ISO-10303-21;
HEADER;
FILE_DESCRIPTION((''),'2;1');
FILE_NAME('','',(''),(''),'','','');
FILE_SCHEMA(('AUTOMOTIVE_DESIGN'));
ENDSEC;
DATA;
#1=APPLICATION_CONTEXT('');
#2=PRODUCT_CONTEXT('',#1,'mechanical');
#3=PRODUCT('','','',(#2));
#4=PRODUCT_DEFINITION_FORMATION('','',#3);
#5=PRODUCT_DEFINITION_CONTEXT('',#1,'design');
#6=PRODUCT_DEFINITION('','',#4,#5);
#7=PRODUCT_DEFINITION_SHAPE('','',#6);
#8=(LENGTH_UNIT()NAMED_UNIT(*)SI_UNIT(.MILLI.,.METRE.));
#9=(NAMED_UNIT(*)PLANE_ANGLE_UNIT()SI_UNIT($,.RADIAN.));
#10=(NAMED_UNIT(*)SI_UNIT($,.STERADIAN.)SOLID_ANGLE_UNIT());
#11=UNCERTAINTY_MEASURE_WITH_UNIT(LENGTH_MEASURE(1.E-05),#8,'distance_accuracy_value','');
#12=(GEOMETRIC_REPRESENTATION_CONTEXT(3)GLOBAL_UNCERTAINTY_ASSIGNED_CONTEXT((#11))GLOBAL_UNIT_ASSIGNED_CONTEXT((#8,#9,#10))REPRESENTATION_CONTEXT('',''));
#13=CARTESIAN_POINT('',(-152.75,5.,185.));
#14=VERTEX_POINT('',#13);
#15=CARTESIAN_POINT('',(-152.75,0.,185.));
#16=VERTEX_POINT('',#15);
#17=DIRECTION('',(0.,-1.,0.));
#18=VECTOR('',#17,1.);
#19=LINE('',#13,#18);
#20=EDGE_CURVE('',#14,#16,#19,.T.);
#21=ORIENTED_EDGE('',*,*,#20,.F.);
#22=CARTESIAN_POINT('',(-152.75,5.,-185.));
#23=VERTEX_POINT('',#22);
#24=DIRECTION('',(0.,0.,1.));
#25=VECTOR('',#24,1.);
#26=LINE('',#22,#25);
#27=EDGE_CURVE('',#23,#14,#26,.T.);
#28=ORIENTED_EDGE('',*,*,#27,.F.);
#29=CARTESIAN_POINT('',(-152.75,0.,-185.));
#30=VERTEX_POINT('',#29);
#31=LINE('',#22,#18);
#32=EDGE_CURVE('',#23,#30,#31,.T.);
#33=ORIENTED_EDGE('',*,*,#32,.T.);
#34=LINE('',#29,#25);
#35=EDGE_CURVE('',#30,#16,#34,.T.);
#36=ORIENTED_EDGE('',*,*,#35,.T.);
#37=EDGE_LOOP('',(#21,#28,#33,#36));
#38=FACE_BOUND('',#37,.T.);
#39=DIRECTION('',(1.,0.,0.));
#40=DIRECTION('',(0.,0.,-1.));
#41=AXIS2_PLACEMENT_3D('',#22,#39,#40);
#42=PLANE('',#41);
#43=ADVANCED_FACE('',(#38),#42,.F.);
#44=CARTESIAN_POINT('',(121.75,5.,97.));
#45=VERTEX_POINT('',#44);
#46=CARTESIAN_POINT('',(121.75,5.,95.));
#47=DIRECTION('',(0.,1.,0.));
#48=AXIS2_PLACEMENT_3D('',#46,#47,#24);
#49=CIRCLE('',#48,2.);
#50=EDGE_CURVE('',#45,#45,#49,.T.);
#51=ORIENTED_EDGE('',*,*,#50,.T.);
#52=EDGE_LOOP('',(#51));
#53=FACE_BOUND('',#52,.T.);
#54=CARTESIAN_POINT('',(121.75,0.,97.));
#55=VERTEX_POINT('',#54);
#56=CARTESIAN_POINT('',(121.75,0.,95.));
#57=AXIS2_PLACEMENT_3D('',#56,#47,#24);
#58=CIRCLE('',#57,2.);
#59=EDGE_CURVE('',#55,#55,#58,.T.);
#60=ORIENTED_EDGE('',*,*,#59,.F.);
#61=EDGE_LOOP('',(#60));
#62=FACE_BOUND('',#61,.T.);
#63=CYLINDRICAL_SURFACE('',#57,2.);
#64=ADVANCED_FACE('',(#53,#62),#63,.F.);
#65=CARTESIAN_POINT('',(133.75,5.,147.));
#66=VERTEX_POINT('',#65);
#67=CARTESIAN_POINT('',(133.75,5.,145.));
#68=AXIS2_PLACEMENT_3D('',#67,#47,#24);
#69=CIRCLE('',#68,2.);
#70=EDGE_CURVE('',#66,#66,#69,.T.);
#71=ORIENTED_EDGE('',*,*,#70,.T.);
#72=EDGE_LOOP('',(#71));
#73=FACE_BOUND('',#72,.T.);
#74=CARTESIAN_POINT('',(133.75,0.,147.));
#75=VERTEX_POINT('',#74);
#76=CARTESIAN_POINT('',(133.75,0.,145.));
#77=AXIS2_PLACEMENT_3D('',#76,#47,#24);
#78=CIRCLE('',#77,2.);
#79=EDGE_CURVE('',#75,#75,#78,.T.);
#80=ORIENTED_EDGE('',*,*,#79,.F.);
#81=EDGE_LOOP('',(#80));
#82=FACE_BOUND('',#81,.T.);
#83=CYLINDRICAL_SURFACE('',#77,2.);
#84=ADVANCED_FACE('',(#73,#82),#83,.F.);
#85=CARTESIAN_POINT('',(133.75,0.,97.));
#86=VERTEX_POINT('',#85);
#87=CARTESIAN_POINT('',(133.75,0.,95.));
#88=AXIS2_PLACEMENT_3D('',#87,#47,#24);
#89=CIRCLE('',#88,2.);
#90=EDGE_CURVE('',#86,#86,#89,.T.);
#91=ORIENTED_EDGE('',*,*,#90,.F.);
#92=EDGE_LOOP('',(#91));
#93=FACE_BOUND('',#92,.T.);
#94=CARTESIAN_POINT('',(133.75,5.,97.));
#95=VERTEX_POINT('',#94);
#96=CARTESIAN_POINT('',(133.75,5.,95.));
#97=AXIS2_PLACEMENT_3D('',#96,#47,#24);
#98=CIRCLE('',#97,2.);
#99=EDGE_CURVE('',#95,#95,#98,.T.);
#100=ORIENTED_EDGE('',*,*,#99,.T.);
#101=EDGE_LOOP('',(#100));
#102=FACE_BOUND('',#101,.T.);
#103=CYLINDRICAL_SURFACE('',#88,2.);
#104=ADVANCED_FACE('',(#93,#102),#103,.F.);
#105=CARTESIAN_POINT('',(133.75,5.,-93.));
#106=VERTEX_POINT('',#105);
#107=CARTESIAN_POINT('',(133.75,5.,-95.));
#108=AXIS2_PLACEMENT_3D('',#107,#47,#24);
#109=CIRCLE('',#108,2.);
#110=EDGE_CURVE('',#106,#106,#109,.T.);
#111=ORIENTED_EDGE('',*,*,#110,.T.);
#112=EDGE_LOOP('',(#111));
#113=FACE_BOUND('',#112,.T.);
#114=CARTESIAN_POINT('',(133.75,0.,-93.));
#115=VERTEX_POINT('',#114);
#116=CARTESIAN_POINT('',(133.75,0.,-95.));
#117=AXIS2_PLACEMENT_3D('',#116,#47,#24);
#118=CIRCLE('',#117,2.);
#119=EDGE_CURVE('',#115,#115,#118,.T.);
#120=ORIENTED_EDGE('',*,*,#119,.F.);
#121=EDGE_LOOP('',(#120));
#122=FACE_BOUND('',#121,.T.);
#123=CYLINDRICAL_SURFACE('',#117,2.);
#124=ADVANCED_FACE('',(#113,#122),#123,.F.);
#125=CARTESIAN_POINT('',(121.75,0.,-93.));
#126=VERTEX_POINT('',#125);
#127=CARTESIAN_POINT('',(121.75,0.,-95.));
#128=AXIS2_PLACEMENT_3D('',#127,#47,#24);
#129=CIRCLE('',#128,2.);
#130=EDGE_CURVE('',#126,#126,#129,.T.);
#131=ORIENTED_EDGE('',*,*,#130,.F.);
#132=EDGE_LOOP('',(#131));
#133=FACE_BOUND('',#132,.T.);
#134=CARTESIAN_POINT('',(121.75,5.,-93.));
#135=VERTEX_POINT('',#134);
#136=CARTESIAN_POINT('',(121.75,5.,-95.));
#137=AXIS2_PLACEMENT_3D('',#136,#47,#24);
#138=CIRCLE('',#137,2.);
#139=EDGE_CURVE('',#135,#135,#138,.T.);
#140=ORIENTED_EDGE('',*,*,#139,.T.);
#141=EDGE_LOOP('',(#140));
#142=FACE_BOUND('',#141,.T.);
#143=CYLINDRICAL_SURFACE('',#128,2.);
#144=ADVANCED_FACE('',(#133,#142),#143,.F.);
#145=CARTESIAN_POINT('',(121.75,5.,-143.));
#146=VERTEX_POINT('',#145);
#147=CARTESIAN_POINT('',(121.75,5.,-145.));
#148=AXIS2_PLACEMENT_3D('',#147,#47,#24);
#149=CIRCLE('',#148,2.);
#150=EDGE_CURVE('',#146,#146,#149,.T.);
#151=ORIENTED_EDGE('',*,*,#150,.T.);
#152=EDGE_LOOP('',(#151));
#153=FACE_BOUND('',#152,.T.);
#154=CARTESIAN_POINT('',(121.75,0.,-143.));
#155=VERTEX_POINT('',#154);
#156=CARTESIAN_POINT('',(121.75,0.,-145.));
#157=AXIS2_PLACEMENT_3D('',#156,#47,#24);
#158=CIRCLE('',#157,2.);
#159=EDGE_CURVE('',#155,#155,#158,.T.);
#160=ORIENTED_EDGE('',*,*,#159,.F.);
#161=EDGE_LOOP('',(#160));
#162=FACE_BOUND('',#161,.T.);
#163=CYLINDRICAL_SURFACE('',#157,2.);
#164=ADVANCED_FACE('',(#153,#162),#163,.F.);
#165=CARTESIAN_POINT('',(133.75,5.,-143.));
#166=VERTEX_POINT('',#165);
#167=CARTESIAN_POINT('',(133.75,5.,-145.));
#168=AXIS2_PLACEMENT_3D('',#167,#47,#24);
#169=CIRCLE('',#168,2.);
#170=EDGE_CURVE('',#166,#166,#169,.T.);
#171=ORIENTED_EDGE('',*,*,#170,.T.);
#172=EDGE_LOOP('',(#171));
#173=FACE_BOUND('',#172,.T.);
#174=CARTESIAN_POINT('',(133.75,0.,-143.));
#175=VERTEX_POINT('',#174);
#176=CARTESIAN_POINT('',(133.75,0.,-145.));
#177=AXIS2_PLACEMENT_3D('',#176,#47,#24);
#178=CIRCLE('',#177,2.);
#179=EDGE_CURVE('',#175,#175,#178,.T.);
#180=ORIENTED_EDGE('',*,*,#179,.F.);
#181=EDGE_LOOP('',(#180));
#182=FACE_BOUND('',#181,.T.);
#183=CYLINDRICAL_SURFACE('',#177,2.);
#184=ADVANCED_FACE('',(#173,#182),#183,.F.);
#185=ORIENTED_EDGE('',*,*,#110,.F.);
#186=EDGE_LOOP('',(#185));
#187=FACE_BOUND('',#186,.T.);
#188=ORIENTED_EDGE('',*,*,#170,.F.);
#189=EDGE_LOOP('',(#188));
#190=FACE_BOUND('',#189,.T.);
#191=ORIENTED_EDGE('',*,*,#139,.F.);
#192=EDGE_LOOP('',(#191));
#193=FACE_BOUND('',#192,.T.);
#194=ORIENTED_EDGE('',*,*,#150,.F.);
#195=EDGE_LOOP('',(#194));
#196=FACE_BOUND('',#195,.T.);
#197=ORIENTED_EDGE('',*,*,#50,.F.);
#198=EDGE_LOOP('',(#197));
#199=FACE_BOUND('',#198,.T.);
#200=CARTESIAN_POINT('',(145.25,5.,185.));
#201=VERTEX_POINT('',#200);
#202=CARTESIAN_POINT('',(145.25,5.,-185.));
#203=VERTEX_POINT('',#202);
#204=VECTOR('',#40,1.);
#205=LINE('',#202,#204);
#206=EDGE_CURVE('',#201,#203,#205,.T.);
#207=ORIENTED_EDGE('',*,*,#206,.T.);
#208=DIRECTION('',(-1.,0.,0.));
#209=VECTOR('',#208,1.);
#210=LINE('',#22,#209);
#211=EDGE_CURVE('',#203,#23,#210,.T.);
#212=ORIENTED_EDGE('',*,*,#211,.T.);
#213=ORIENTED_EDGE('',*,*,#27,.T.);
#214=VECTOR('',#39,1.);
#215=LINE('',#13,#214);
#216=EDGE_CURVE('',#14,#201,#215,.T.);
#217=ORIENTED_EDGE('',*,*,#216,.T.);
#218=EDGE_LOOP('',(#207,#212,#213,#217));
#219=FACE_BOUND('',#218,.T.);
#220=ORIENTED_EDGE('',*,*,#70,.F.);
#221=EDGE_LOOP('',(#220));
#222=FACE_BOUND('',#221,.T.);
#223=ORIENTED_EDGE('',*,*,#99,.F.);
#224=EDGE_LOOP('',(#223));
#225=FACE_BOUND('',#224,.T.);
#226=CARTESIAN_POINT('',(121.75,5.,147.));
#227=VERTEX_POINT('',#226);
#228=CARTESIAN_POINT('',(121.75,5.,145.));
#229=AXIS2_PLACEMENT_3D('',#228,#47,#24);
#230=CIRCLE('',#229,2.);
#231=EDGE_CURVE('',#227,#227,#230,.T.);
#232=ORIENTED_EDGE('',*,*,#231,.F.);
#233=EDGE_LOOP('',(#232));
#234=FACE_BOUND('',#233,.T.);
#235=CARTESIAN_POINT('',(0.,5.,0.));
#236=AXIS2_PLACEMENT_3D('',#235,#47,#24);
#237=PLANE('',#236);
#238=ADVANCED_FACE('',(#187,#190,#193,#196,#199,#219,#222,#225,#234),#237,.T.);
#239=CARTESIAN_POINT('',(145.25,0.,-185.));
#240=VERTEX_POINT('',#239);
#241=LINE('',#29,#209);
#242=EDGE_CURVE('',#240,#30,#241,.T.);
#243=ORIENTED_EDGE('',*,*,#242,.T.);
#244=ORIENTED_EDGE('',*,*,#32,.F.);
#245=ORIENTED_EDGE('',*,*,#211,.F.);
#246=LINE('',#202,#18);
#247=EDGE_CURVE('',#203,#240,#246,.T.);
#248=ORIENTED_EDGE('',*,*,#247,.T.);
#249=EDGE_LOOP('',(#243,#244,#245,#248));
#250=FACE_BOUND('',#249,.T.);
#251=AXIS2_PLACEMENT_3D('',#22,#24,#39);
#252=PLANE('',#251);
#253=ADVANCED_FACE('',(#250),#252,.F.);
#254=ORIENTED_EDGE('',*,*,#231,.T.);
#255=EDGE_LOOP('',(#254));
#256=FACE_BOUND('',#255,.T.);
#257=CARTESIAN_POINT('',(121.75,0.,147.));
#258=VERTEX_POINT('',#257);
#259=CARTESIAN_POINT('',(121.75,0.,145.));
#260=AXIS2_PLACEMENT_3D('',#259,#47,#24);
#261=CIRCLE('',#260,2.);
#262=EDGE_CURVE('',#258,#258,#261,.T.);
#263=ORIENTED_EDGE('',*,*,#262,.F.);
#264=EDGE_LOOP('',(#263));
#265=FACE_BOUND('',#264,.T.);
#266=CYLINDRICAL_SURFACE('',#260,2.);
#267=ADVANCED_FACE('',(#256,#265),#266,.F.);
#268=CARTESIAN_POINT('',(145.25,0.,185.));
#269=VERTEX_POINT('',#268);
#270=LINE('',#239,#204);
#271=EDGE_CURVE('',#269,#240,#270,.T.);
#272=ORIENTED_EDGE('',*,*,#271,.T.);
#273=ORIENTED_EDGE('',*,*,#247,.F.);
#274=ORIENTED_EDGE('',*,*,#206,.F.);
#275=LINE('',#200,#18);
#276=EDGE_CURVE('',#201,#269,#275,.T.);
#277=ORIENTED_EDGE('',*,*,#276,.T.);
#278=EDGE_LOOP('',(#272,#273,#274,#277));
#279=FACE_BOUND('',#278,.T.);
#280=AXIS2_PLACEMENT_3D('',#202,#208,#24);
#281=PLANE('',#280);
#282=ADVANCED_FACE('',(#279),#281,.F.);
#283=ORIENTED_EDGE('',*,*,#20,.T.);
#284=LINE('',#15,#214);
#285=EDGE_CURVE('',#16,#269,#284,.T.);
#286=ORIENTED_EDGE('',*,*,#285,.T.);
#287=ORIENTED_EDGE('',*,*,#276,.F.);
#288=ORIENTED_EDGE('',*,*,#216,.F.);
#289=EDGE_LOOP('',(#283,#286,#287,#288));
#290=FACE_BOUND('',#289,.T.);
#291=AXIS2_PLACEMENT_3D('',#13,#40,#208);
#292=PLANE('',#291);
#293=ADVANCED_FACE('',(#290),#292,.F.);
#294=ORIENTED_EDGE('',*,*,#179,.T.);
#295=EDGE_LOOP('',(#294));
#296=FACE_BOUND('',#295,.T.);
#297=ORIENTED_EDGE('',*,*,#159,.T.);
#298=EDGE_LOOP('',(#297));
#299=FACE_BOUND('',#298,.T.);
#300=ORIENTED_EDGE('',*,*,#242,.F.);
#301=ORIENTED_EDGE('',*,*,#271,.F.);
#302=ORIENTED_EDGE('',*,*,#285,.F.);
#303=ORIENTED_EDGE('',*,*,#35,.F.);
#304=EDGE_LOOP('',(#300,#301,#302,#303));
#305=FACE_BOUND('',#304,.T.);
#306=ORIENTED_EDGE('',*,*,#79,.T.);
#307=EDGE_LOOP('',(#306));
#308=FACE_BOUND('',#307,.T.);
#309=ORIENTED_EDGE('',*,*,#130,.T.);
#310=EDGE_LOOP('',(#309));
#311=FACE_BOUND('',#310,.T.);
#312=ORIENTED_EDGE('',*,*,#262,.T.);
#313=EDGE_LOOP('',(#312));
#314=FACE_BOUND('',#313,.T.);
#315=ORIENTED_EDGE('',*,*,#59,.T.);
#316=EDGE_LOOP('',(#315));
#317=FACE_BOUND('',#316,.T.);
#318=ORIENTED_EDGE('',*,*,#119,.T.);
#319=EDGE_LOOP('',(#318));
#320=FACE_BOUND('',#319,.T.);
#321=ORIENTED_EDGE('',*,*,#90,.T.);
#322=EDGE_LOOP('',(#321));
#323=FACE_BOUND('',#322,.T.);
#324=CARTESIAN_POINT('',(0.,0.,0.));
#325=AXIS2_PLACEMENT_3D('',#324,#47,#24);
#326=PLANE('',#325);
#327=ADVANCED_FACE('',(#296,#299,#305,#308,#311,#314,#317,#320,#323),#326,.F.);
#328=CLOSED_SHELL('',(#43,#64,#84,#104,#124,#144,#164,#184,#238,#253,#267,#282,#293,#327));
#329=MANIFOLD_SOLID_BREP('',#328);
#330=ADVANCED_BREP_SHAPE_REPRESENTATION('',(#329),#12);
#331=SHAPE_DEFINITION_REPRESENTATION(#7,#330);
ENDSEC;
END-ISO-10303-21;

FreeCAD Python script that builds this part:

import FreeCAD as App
import Part
import Sketcher
from FreeCAD import Vector

doc = App.newDocument("Part")
body = doc.addObject("PartDesign::Body", "Body")

# Sketch on XZ plane
sketch1 = body.newObject("Sketcher::SketchObject", "Sketch")
sketch1.AttachmentSupport = (doc.getObject("XZ_Plane"), [""])
sketch1.MapMode = "FlatFace"
sketch1.addGeometry([
    Part.LineSegment(Vector(-152.75, -185, 0), Vector(-152.75, 185, 0)),
    Part.LineSegment(Vector(-152.75, 185, 0), Vector(145.25, 185, 0)),
    Part.LineSegment(Vector(145.25, 185, 0), Vector(145.25, -185, 0)),
    Part.LineSegment(Vector(145.25, -185, 0), Vector(-152.75, -185, 0)),
], False)
sketch1.addConstraint([
    Sketcher.Constraint("Coincident", 0, 2, 1, 1),
    Sketcher.Constraint("Coincident", 1, 2, 2, 1),
    Sketcher.Constraint("Coincident", 2, 2, 3, 1),
    Sketcher.Constraint("Coincident", 3, 2, 0, 1),
    Sketcher.Constraint("Vertical", 0),
    Sketcher.Constraint("Horizontal", 1),
    Sketcher.Constraint("Vertical", 2),
    Sketcher.Constraint("Horizontal", 3),
    Sketcher.Constraint("DistanceX", 1, 1, 1, 2, 298.0),
    Sketcher.Constraint("DistanceY", 0, 1, 0, 2, 370.0),
    Sketcher.Constraint("DistanceY", -1, 1, 0, 2, 185.0),
    Sketcher.Constraint("DistanceX", 0, 2, -1, 1, 152.75),
])
pad1 = body.newObject("PartDesign::Pad", "Pad")
pad1.Profile = sketch1
pad1.Length = 5
pad1.Reversed = True

# Sketch on XZ plane
sketch2 = body.newObject("Sketcher::SketchObject", "Sketch001")
sketch2.AttachmentSupport = (doc.getObject("XZ_Plane"), [""])
sketch2.MapMode = "FlatFace"
sketch2.AttachmentOffset = App.Placement(Vector(0, 0, -5), App.Rotation())
sketch2.addGeometry([
    Part.Circle(Vector(121.75, -145, 0), Vector(0, 0, 1), 2),  # 0
    Part.Circle(Vector(133.75, -145, 0), Vector(0, 0, 1), 2),  # 1
    Part.Circle(Vector(121.75, -95, 0), Vector(0, 0, 1), 2),  # 2
    Part.Circle(Vector(133.75, -95, 0), Vector(0, 0, 1), 2),  # 3
    Part.Circle(Vector(133.75, 95, 0), Vector(0, 0, 1), 2),  # 4
    Part.Circle(Vector(121.75, 95, 0), Vector(0, 0, 1), 2),  # 5
    Part.Circle(Vector(133.75, 145, 0), Vector(0, 0, 1), 2),  # 6
    Part.Circle(Vector(121.75, 145, 0), Vector(0, 0, 1), 2),  # 7
], False)
sketch2.addConstraint([
    Sketcher.Constraint("Equal", 0, 1),
    Sketcher.Constraint("Equal", 1, 2),
    Sketcher.Constraint("Equal", 2, 3),
    Sketcher.Constraint("Equal", 3, 4),
    Sketcher.Constraint("Equal", 4, 5),
    Sketcher.Constraint("Equal", 5, 6),
    Sketcher.Constraint("Equal", 6, 7),
    Sketcher.Constraint("Symmetric", 3, 3, 4, 3, -1),
    Sketcher.Constraint("Symmetric", 2, 3, 5, 3, -1),
    Sketcher.Constraint("Symmetric", 1, 3, 6, 3, -1),
    Sketcher.Constraint("Symmetric", 0, 3, 7, 3, -1),
    Sketcher.Constraint("Horizontal", 0, 3, 1, 3),
    Sketcher.Constraint("Horizontal", 2, 3, 3, 3),
    Sketcher.Constraint("Vertical", 0, 3, 2, 3),
    Sketcher.Constraint("Vertical", 1, 3, 3, 3),
    Sketcher.Constraint("Diameter", 0, 4.0),
    Sketcher.Constraint("DistanceY", 0, 3, -1, 1, 145.0),
    Sketcher.Constraint("DistanceY", 2, 3, -1, 1, 95.0),
    Sketcher.Constraint("DistanceX", 0, 3, 1, 3, 12.0),
    Sketcher.Constraint("DistanceX", -1, 1, 0, 3, 121.75),
])
pocket1 = body.newObject("PartDesign::Pocket", "Pocket")
pocket1.Profile = sketch2
pocket1.Type = "ThroughAll"
pocket1.Reversed = True

doc.recompute()
